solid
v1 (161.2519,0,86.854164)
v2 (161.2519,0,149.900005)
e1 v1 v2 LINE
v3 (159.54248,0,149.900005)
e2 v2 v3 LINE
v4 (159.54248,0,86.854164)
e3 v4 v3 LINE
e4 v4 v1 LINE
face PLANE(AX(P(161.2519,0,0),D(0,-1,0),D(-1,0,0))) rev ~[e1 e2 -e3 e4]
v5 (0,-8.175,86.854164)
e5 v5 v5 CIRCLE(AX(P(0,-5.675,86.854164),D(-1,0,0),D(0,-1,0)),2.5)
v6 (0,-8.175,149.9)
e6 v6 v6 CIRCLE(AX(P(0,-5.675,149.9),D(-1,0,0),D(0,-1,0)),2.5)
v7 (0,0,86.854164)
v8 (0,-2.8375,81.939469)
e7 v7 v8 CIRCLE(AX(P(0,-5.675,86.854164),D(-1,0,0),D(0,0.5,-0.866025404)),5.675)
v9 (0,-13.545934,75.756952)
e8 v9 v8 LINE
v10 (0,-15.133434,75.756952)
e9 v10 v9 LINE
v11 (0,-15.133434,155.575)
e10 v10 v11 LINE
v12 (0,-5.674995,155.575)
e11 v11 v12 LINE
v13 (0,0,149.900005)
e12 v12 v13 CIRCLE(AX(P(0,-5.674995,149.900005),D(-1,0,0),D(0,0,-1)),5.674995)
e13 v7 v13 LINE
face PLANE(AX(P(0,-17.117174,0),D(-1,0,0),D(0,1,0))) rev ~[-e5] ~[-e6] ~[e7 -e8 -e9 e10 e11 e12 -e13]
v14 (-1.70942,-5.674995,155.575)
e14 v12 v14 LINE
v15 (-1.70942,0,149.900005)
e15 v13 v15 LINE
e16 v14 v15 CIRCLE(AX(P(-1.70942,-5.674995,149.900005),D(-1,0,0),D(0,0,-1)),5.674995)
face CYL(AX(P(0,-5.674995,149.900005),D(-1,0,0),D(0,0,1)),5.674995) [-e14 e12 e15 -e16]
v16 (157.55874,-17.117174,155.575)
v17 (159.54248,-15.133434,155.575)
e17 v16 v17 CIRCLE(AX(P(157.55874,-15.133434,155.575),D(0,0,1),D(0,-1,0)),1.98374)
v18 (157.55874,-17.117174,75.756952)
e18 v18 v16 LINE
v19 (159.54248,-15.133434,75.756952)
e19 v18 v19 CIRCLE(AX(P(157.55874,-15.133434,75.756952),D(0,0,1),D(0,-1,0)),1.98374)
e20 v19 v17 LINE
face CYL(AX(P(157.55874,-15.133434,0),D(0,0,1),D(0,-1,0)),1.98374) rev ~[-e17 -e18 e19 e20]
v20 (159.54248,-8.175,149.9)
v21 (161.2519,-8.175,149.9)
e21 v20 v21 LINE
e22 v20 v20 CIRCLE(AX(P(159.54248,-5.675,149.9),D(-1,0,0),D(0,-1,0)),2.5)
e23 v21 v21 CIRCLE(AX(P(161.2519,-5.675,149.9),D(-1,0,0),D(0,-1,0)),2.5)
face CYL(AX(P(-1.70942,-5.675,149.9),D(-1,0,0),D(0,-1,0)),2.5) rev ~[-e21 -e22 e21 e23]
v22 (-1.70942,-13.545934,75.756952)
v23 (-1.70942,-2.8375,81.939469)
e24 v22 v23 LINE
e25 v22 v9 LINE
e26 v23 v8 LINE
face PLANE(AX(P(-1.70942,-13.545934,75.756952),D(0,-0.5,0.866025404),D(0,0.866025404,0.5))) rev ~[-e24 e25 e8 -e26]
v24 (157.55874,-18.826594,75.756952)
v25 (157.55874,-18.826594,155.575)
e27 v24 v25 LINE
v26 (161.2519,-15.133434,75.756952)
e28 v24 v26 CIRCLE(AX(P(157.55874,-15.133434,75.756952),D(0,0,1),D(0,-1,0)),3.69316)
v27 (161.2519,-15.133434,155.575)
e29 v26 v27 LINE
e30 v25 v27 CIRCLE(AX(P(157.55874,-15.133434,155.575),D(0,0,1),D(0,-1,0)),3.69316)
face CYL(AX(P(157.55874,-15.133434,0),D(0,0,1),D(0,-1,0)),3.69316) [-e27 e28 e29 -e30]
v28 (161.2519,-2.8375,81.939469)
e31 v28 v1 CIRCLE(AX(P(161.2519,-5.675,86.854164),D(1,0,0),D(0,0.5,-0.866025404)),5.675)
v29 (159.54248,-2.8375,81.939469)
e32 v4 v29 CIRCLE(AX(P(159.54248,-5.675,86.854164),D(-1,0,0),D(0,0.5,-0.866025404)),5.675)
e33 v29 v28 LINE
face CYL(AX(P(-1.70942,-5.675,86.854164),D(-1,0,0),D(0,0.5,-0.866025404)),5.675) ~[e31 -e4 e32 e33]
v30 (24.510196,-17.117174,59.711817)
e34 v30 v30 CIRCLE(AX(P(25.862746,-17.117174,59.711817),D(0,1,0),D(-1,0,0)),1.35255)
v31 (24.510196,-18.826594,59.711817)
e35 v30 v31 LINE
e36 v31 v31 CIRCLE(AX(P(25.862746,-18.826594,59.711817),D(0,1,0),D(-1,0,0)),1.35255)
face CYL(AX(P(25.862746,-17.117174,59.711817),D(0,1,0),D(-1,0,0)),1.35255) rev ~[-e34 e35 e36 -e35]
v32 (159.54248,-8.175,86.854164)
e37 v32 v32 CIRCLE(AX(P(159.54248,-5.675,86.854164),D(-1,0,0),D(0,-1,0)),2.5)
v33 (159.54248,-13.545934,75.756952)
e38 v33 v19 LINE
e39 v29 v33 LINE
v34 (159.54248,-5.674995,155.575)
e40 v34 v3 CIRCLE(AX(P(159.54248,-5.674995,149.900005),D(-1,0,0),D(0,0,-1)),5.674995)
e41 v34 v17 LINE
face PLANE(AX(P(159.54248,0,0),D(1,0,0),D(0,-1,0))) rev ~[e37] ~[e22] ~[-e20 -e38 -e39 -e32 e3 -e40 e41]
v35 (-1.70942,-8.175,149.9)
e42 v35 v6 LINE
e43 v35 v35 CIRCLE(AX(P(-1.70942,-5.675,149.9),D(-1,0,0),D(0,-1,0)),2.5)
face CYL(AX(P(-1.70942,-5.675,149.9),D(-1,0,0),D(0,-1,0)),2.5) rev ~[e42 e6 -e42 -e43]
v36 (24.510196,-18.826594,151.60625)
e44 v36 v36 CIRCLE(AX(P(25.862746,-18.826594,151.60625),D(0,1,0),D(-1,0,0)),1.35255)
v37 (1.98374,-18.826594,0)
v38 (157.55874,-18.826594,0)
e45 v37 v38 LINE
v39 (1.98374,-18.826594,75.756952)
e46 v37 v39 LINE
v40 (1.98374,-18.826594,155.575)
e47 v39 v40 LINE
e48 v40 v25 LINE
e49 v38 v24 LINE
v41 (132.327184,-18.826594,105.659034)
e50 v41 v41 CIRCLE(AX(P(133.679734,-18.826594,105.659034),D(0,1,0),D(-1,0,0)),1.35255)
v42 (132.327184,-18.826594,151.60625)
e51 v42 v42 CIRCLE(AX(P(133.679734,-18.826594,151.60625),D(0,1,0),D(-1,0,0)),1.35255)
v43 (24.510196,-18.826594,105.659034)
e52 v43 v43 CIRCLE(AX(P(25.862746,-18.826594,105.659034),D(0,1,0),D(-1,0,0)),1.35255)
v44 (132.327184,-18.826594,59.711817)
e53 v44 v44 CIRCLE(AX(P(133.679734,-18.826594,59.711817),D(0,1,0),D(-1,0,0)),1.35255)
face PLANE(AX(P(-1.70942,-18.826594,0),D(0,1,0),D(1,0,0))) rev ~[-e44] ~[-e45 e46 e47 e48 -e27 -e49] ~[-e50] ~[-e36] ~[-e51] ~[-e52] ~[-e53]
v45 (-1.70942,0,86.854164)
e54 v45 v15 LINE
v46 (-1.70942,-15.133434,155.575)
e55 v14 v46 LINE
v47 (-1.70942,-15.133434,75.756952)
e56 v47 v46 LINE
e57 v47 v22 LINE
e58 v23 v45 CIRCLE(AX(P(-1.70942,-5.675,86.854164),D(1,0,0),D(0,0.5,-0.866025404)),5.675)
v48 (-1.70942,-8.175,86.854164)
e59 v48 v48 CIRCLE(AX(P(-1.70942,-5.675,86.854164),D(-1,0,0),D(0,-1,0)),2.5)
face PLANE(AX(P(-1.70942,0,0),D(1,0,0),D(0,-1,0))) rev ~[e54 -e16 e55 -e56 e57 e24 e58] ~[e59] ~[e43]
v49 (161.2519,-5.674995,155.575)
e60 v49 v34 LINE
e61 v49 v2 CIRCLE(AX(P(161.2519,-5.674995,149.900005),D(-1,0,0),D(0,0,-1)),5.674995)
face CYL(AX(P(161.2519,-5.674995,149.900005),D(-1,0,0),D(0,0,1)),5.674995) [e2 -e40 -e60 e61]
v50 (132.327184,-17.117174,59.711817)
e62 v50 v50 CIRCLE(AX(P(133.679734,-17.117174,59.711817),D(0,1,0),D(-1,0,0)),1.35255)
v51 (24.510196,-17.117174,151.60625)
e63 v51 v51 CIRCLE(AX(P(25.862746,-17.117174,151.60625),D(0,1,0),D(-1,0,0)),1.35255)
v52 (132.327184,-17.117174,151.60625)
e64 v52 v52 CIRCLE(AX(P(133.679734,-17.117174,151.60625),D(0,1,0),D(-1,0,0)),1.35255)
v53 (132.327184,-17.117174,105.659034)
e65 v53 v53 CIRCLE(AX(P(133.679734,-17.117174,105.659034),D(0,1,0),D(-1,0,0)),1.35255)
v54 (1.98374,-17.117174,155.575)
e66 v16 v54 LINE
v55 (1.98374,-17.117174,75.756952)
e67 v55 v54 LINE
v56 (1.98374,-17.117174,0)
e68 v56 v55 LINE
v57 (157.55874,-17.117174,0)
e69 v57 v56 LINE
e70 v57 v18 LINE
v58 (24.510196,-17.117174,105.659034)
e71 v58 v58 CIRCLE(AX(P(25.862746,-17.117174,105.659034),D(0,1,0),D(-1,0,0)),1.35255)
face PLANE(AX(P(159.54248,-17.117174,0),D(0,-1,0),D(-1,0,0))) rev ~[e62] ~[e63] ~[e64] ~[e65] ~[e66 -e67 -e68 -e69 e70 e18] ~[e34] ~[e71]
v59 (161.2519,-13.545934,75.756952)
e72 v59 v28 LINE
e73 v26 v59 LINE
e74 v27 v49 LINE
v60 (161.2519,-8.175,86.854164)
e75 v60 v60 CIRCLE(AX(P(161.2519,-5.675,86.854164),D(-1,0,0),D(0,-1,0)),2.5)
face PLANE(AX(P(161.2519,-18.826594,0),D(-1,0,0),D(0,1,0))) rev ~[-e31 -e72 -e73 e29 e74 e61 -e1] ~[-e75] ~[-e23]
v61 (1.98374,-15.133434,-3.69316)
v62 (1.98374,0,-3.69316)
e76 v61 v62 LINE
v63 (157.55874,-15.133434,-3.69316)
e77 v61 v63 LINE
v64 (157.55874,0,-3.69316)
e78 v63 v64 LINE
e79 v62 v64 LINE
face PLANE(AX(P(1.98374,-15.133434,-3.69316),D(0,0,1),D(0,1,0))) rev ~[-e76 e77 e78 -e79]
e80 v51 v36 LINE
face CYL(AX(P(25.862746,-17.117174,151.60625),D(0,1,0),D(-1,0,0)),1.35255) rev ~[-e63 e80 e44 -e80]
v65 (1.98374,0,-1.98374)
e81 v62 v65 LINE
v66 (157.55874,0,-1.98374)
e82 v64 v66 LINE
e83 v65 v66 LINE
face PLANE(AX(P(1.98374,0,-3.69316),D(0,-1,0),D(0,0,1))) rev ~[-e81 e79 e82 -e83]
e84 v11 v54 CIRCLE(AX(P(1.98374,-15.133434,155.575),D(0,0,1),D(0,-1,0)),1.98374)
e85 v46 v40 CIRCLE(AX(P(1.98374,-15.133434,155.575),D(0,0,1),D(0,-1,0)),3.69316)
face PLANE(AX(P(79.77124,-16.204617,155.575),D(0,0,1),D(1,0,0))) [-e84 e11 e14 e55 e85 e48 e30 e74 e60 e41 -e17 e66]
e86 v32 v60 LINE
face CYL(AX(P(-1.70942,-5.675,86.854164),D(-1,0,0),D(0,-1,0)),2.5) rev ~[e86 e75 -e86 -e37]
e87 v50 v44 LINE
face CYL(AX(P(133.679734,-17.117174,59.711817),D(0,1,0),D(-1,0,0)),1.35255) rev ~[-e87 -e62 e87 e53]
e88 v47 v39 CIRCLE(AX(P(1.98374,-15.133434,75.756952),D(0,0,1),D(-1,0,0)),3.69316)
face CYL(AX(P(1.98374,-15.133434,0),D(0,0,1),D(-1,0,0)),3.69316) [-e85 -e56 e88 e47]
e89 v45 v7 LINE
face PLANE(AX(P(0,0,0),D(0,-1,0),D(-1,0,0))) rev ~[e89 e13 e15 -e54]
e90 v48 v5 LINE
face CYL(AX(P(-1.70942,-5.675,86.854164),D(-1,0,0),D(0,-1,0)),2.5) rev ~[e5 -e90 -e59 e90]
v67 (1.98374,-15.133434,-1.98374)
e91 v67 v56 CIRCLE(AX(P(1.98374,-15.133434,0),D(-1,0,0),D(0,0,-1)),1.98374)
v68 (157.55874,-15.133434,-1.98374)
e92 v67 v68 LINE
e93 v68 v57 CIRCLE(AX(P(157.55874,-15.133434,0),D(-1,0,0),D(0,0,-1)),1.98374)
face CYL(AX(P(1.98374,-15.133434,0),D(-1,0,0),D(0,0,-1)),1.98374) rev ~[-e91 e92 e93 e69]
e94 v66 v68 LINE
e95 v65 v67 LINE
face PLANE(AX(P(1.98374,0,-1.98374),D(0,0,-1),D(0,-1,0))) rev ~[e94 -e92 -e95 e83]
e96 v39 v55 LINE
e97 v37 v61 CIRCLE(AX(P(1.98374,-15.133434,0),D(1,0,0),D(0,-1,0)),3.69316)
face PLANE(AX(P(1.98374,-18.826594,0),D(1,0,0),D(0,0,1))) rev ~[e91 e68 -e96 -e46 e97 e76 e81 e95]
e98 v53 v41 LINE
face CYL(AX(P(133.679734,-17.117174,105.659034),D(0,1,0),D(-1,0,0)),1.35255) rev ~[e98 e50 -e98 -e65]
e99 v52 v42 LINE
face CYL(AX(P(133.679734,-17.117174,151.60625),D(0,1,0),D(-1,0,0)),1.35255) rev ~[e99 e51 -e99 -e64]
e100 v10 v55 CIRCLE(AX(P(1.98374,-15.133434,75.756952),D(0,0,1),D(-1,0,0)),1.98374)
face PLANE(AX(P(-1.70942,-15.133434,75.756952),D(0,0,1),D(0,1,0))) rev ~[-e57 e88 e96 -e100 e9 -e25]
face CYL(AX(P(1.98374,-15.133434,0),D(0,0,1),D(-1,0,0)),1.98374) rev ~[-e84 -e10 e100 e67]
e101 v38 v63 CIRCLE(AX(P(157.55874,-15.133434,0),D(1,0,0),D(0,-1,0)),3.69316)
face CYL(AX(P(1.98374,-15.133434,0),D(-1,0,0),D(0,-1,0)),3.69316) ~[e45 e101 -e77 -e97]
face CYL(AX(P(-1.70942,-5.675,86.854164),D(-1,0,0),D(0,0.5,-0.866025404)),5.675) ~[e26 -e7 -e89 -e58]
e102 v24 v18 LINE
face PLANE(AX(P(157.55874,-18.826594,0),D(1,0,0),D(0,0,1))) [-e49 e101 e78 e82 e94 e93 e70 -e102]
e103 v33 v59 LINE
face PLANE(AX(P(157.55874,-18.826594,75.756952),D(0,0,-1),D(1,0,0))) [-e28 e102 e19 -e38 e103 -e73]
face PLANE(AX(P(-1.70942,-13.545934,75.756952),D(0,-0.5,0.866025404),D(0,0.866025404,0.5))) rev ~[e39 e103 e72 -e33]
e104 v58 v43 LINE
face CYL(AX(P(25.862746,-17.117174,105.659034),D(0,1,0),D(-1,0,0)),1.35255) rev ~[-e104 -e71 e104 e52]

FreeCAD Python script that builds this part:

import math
import FreeCAD as App
import Part
import Sketcher
from FreeCAD import Vector
Q = App.Units.Quantity


def edges_at(feature, points):
    """Names of the edges that pass closest to the given points."""
    edges = feature.Shape.Edges
    near = lambda p: min(range(len(edges)), key=lambda i: edges[i].distToShape(Part.Vertex(*p))[0])
    return sorted({f"Edge{near(p) + 1}" for p in points})

doc = App.newDocument("Part")
body = doc.addObject("PartDesign::Body", "Body")

sketch1 = doc.addObject("Sketcher::SketchObject", "Sketch")
body.addObject(sketch1)
sketch1.AttachmentSupport = (doc.XY_Plane, [""])
sketch1.MapMode = "FlatFace"
sketch1.addGeometry([
    Part.LineSegment(Vector(0, 0, 0), Vector(-1.70942, 0, 0)),
    Part.LineSegment(Vector(-1.70942, 0, 0), Vector(-1.70942, -18.826594, 0)),
    Part.LineSegment(Vector(-1.70942, -18.826594, 0), Vector(161.2519, -18.826594, 0)),
    Part.LineSegment(Vector(161.2519, -18.826594, 0), Vector(161.2519, 0, 0)),
    Part.LineSegment(Vector(161.2519, 0, 0), Vector(159.54248, 0, 0)),
    Part.LineSegment(Vector(159.54248, 0, 0), Vector(159.54248, -17.117174, 0)),
    Part.LineSegment(Vector(159.54248, -17.117174, 0), Vector(0, -17.117174, 0)),
    Part.LineSegment(Vector(0, -17.117174, 0), Vector(0, 0, 0)),
], False)
sketch1.addConstraint([
    Sketcher.Constraint("Coincident", 0, 2, 1, 1),
    Sketcher.Constraint("Coincident", 1, 2, 2, 1),
    Sketcher.Constraint("Coincident", 2, 2, 3, 1),
    Sketcher.Constraint("Coincident", 3, 2, 4, 1),
    Sketcher.Constraint("Coincident", 4, 2, 5, 1),
    Sketcher.Constraint("Coincident", 5, 2, 6, 1),
    Sketcher.Constraint("Coincident", 6, 2, 7, 1),
    Sketcher.Constraint("Coincident", 7, 2, 0, 1),
    Sketcher.Constraint("Horizontal", 0),
    Sketcher.Constraint("Vertical", 1),
    Sketcher.Constraint("Horizontal", 2),
    Sketcher.Constraint("Vertical", 3),
    Sketcher.Constraint("Horizontal", 4),
    Sketcher.Constraint("Vertical", 5),
    Sketcher.Constraint("Horizontal", 6),
    Sketcher.Constraint("Vertical", 7),
    Sketcher.Constraint("Coincident", 7, 2, -1, 1),
    Sketcher.Constraint("PointOnObject", 3, 2, -1),
    Sketcher.Constraint("Equal", 0, 4),
    Sketcher.Constraint("DistanceX", 0, 2, 0, 1, Q("0.0673 in")),
    Sketcher.Constraint("DistanceX", 2, 1, 2, 2, Q("6.4158 in")),
    Sketcher.Constraint("DistanceY", 2, 2, 5, 2, Q("0.0673 in")),
    Sketcher.Constraint("DistanceY", 1, 2, 1, 1, 18.826594),
])
pad1 = doc.addObject("PartDesign::Pad", "Pad")
body.addObject(pad1)
pad1.Profile = sketch1
pad1.Length = Q("6.125 in")
doc.recompute()

fillet = doc.addObject("PartDesign::Fillet", "Fillet")
body.addObject(fillet)
fillet.Base = (pad1, edges_at(pad1, [(161.252, -18.827, 77.787), (-1.709, -18.827, 77.787)]))
fillet.Radius = Q("0.1454 in")
doc.recompute()

fillet2 = doc.addObject("PartDesign::Fillet", "Fillet001")
body.addObject(fillet2)
fillet2.Base = (fillet, edges_at(fillet, [(159.542, -17.117, 77.787), (0, -17.117, 77.787)]))
fillet2.Radius = Q("0.0781 in")

sketch2 = doc.addObject("Sketcher::SketchObject", "Sketch001")
body.addObject(sketch2)
sketch2.AttachmentSupport = (doc.YZ_Plane, [""])
sketch2.MapMode = "FlatFace"
sketch2.AttachmentOffset = App.Placement(Vector(0, 0, 0.0781 * 25.4), App.Rotation())
sketch2.addGeometry([
    Part.LineSegment(Vector(-17.117174, 0, 0), Vector(-18.826594, 0, 0)),
    Part.ArcOfCircle(Part.Circle(Vector(-15.133434, 0, 0), Vector(0, 0, 1), 3.69316), math.radians(180), math.radians(270)),
    Part.LineSegment(Vector(-15.133434, -3.69316, 0), Vector(0, -3.69316, 0)),
    Part.LineSegment(Vector(0, -3.69316, 0), Vector(0, -1.98374, 0)),
    Part.LineSegment(Vector(0, -1.98374, 0), Vector(-15.133434, -1.98374, 0)),
    Part.ArcOfCircle(Part.Circle(Vector(-15.133434, 0, 0), Vector(0, 0, 1), 1.98374), math.radians(180), math.radians(270)),
], False)
sketch2.addConstraint([
    Sketcher.Constraint("Coincident", 0, 2, 1, 1),
    Sketcher.Constraint("Tangent", 1, 2, 2, 1),
    Sketcher.Constraint("Coincident", 2, 2, 3, 1),
    Sketcher.Constraint("Coincident", 3, 2, 4, 1),
    Sketcher.Constraint("Tangent", 4, 2, 5, 2),
    Sketcher.Constraint("Coincident", 5, 1, 0, 1),
    Sketcher.Constraint("Horizontal", 0),
    Sketcher.Constraint("Horizontal", 2),
    Sketcher.Constraint("Vertical", 3),
    Sketcher.Constraint("Horizontal", 4),
    Sketcher.Constraint("Coincident", 5, 3, 1, 3),
    Sketcher.Constraint("PointOnObject", 1, 3, -1),
    Sketcher.Constraint("PointOnObject", 0, 2, -1),
    Sketcher.Constraint("PointOnObject", 2, 2, -2),
    Sketcher.Constraint("Radius", 1, Q("0.1454 in")),
    Sketcher.Constraint("Radius", 5, Q("0.0781 in")),
    Sketcher.Constraint("DistanceX", 2, 1, 2, 2, 15.133434),
])
pad2 = doc.addObject("PartDesign::Pad", "Pad001")
body.addObject(pad2)
pad2.Profile = sketch2
pad2.Length = Q("6.125 in")

sketch3 = doc.addObject("Sketcher::SketchObject", "Sketch002")
body.addObject(sketch3)
sketch3.AttachmentSupport = (doc.YZ_Plane, [""])
sketch3.MapMode = "FlatFace"
sketch3.AttachmentOffset = App.Placement(Vector(0, 0, -0.0673 * 25.4), App.Rotation())
sketch3.addGeometry([
    Part.Circle(Vector(-5.675, 149.9, 0), Vector(0, 0, 1), 2.5),
    Part.Circle(Vector(-5.675, 86.854164, 0), Vector(0, 0, 1), 2.5),
    Part.ArcOfCircle(Part.Circle(Vector(-5.675, 86.854164, 0), Vector(0, 0, 1), 5.675), math.radians(-60), math.radians(0)),
    Part.LineSegment(Vector(0, 86.854164, 0), Vector(0, 0, 0)),
    Part.LineSegment(Vector(0, 0, 0), Vector(-15.133434, 0, 0)),
    Part.LineSegment(Vector(-15.133434, 0, 0), Vector(-15.133434, 75.756952, 0)),
    Part.LineSegment(Vector(-15.133434, 75.756952, 0), Vector(-13.545934, 75.756952, 0)),
    Part.LineSegment(Vector(-13.545934, 75.756952, 0), Vector(-2.8375, 81.939469, 0)),
], False)
sketch3.addConstraint([
    Sketcher.Constraint("Tangent", 2, 2, 3, 1),
    Sketcher.Constraint("Coincident", 3, 2, 4, 1),
    Sketcher.Constraint("Coincident", 4, 2, 5, 1),
    Sketcher.Constraint("Coincident", 5, 2, 6, 1),
    Sketcher.Constraint("Coincident", 6, 2, 7, 1),
    Sketcher.Constraint("Tangent", 7, 2, 2, 1),
    Sketcher.Constraint("Vertical", 3),
    Sketcher.Constraint("Horizontal", 4),
    Sketcher.Constraint("Vertical", 5),
    Sketcher.Constraint("Horizontal", 6),
    Sketcher.Constraint("Coincident", 3, 2, -1, 1),
    Sketcher.Constraint("Coincident", 2, 3, 1, 3),
    Sketcher.Constraint("Equal", 0, 1),
    Sketcher.Constraint("Vertical", 0, 3, 1, 3),
    Sketcher.Constraint("Angle", 7, Q("30 deg")),
    Sketcher.Constraint("Diameter", 0, 5.0),
    Sketcher.Constraint("DistanceX", 6, 1, 6, 2, Q("0.0625 in")),
    Sketcher.Constraint("Radius", 2, 5.675),
    Sketcher.Constraint("DistanceY", 5, 1, 5, 2, 75.756952),
    Sketcher.Constraint("DistanceY", -1, 1, 0, 3, 149.9),
    Sketcher.Constraint("DistanceX", 4, 2, 4, 1, 15.133434),
])
pocket1 = doc.addObject("PartDesign::Pocket", "Pocket")
body.addObject(pocket1)
pocket1.Profile = sketch3
pocket1.Type = "ThroughAll"
pocket1.Reversed = True
doc.recompute()

fillet3 = doc.addObject("PartDesign::Fillet", "Fillet002")
body.addObject(fillet3)
fillet3.Base = (pocket1, edges_at(pocket1, [(-0.855, 0, 155.575), (160.397, 0, 155.575)]))
fillet3.Radius = 5.674995

sketch4 = doc.addObject("Sketcher::SketchObject", "Sketch003")
body.addObject(sketch4)
sketch4.AttachmentSupport = (doc.XZ_Plane, [""])
sketch4.MapMode = "FlatFace"
sketch4.AttachmentOffset = App.Placement(Vector(0, 0, 17.117174), App.Rotation())
sketch4.addGeometry([
    Part.Circle(Vector(25.862746, 59.711817, 0), Vector(0, 0, 1), 1.35255),
    Part.Circle(Vector(25.862746, 105.659034, 0), Vector(0, 0, 1), 1.35255),
    Part.Circle(Vector(25.862746, 151.60625, 0), Vector(0, 0, 1), 1.35255),
    Part.Circle(Vector(133.679734, 151.60625, 0), Vector(0, 0, 1), 1.35255),
    Part.Circle(Vector(133.679734, 105.659034, 0), Vector(0, 0, 1), 1.35255),
    Part.Circle(Vector(133.679734, 59.711817, 0), Vector(0, 0, 1), 1.35255),
], False)
sketch4.addConstraint([
    Sketcher.Constraint("Equal", 0, 1),
    Sketcher.Constraint("Equal", 1, 2),
    Sketcher.Constraint("Equal", 2, 3),
    Sketcher.Constraint("Equal", 3, 4),
    Sketcher.Constraint("Equal", 4, 5),
    Sketcher.Constraint("Horizontal", 2, 3, 3, 3),
    Sketcher.Constraint("Horizontal", 1, 3, 4, 3),
    Sketcher.Constraint("Horizontal", 0, 3, 5, 3),
    Sketcher.Constraint("Vertical", 0, 3, 1, 3),
    Sketcher.Constraint("Vertical", 1, 3, 2, 3),
    Sketcher.Constraint("Vertical", 3, 3, 4, 3),
    Sketcher.Constraint("Vertical", 4, 3, 5, 3),
    Sketcher.Constraint("Diameter", 0, Q("0.1065 in")),
    Sketcher.Constraint("DistanceY", -1, 1, 2, 3, Q("5.96875 in")),
    Sketcher.Constraint("DistanceX", 2, 3, 3, 3, 107.816988),
    Sketcher.Constraint("DistanceX", -1, 1, 0, 3, 25.862746),
    Sketcher.Constraint("DistanceY", -1, 1, 0, 3, 59.711817),
    Sketcher.Constraint("DistanceY", -1, 1, 1, 3, 105.659034),
])
pocket2 = doc.addObject("PartDesign::Pocket", "Pocket001")
body.addObject(pocket2)
pocket2.Profile = sketch4
pocket2.Type = "ThroughAll"
pocket2.Reversed = True

sketch5 = doc.addObject("Sketcher::SketchObject", "Sketch004")
body.addObject(sketch5)
sketch5.AttachmentSupport = (doc.XZ_Plane, [""])
sketch5.MapMode = "FlatFace"
sketch5.AttachmentOffset = App.Placement(Vector(0, 0, 18.826594), App.Rotation())
sketch5.addGeometry([
    Part.LineSegment(Vector(-1.70942, 75.756952, 0), Vector(-1.70942, 0, 0)),
    Part.LineSegment(Vector(-1.70942, 0, 0), Vector(1.98374, 0, 0)),
    Part.LineSegment(Vector(1.98374, 0, 0), Vector(1.98374, 75.756952, 0)),
    Part.LineSegment(Vector(1.98374, 75.756952, 0), Vector(-1.70942, 75.756952, 0)),
    Part.LineSegment(Vector(157.55874, 75.756952, 0), Vector(157.55874, 0, 0)),
    Part.LineSegment(Vector(157.55874, 0, 0), Vector(161.2519, 0, 0)),
    Part.LineSegment(Vector(161.2519, 0, 0), Vector(161.2519, 75.756952, 0)),
    Part.LineSegment(Vector(161.2519, 75.756952, 0), Vector(157.55874, 75.756952, 0)),
], False)
sketch5.addConstraint([
    Sketcher.Constraint("Coincident", 0, 2, 1, 1),
    Sketcher.Constraint("Coincident", 1, 2, 2, 1),
    Sketcher.Constraint("Coincident", 2, 2, 3, 1),
    Sketcher.Constraint("Coincident", 3, 2, 0, 1),
    Sketcher.Constraint("Coincident", 4, 2, 5, 1),
    Sketcher.Constraint("Coincident", 5, 2, 6, 1),
    Sketcher.Constraint("Coincident", 6, 2, 7, 1),
    Sketcher.Constraint("Coincident", 7, 2, 4, 1),
    Sketcher.Constraint("Vertical", 0),
    Sketcher.Constraint("Horizontal", 1),
    Sketcher.Constraint("Vertical", 2),
    Sketcher.Constraint("Horizontal", 3),
    Sketcher.Constraint("Vertical", 4),
    Sketcher.Constraint("Horizontal", 5),
    Sketcher.Constraint("Vertical", 6),
    Sketcher.Constraint("Horizontal", 7),
    Sketcher.Constraint("PointOnObject", 0, 2, -1),
    Sketcher.Constraint("PointOnObject", 4, 2, -1),
    Sketcher.Constraint("Horizontal", 3, 2, 6, 2),
    Sketcher.Constraint("Equal", 3, 5),
    Sketcher.Constraint("DistanceX", 1, 1, 1, 2, Q("0.1454 in")),
    Sketcher.Constraint("DistanceX", 1, 2, 4, 2, Q("6.125 in")),
    Sketcher.Constraint("DistanceX", 0, 2, -1, 1, Q("0.0673 in")),
    Sketcher.Constraint("DistanceY", 0, 2, 0, 1, 75.756952),
])
pocket3 = doc.addObject("PartDesign::Pocket", "Pocket002")
body.addObject(pocket3)
pocket3.Profile = sketch5
pocket3.Type = "ThroughAll"

doc.recompute()
